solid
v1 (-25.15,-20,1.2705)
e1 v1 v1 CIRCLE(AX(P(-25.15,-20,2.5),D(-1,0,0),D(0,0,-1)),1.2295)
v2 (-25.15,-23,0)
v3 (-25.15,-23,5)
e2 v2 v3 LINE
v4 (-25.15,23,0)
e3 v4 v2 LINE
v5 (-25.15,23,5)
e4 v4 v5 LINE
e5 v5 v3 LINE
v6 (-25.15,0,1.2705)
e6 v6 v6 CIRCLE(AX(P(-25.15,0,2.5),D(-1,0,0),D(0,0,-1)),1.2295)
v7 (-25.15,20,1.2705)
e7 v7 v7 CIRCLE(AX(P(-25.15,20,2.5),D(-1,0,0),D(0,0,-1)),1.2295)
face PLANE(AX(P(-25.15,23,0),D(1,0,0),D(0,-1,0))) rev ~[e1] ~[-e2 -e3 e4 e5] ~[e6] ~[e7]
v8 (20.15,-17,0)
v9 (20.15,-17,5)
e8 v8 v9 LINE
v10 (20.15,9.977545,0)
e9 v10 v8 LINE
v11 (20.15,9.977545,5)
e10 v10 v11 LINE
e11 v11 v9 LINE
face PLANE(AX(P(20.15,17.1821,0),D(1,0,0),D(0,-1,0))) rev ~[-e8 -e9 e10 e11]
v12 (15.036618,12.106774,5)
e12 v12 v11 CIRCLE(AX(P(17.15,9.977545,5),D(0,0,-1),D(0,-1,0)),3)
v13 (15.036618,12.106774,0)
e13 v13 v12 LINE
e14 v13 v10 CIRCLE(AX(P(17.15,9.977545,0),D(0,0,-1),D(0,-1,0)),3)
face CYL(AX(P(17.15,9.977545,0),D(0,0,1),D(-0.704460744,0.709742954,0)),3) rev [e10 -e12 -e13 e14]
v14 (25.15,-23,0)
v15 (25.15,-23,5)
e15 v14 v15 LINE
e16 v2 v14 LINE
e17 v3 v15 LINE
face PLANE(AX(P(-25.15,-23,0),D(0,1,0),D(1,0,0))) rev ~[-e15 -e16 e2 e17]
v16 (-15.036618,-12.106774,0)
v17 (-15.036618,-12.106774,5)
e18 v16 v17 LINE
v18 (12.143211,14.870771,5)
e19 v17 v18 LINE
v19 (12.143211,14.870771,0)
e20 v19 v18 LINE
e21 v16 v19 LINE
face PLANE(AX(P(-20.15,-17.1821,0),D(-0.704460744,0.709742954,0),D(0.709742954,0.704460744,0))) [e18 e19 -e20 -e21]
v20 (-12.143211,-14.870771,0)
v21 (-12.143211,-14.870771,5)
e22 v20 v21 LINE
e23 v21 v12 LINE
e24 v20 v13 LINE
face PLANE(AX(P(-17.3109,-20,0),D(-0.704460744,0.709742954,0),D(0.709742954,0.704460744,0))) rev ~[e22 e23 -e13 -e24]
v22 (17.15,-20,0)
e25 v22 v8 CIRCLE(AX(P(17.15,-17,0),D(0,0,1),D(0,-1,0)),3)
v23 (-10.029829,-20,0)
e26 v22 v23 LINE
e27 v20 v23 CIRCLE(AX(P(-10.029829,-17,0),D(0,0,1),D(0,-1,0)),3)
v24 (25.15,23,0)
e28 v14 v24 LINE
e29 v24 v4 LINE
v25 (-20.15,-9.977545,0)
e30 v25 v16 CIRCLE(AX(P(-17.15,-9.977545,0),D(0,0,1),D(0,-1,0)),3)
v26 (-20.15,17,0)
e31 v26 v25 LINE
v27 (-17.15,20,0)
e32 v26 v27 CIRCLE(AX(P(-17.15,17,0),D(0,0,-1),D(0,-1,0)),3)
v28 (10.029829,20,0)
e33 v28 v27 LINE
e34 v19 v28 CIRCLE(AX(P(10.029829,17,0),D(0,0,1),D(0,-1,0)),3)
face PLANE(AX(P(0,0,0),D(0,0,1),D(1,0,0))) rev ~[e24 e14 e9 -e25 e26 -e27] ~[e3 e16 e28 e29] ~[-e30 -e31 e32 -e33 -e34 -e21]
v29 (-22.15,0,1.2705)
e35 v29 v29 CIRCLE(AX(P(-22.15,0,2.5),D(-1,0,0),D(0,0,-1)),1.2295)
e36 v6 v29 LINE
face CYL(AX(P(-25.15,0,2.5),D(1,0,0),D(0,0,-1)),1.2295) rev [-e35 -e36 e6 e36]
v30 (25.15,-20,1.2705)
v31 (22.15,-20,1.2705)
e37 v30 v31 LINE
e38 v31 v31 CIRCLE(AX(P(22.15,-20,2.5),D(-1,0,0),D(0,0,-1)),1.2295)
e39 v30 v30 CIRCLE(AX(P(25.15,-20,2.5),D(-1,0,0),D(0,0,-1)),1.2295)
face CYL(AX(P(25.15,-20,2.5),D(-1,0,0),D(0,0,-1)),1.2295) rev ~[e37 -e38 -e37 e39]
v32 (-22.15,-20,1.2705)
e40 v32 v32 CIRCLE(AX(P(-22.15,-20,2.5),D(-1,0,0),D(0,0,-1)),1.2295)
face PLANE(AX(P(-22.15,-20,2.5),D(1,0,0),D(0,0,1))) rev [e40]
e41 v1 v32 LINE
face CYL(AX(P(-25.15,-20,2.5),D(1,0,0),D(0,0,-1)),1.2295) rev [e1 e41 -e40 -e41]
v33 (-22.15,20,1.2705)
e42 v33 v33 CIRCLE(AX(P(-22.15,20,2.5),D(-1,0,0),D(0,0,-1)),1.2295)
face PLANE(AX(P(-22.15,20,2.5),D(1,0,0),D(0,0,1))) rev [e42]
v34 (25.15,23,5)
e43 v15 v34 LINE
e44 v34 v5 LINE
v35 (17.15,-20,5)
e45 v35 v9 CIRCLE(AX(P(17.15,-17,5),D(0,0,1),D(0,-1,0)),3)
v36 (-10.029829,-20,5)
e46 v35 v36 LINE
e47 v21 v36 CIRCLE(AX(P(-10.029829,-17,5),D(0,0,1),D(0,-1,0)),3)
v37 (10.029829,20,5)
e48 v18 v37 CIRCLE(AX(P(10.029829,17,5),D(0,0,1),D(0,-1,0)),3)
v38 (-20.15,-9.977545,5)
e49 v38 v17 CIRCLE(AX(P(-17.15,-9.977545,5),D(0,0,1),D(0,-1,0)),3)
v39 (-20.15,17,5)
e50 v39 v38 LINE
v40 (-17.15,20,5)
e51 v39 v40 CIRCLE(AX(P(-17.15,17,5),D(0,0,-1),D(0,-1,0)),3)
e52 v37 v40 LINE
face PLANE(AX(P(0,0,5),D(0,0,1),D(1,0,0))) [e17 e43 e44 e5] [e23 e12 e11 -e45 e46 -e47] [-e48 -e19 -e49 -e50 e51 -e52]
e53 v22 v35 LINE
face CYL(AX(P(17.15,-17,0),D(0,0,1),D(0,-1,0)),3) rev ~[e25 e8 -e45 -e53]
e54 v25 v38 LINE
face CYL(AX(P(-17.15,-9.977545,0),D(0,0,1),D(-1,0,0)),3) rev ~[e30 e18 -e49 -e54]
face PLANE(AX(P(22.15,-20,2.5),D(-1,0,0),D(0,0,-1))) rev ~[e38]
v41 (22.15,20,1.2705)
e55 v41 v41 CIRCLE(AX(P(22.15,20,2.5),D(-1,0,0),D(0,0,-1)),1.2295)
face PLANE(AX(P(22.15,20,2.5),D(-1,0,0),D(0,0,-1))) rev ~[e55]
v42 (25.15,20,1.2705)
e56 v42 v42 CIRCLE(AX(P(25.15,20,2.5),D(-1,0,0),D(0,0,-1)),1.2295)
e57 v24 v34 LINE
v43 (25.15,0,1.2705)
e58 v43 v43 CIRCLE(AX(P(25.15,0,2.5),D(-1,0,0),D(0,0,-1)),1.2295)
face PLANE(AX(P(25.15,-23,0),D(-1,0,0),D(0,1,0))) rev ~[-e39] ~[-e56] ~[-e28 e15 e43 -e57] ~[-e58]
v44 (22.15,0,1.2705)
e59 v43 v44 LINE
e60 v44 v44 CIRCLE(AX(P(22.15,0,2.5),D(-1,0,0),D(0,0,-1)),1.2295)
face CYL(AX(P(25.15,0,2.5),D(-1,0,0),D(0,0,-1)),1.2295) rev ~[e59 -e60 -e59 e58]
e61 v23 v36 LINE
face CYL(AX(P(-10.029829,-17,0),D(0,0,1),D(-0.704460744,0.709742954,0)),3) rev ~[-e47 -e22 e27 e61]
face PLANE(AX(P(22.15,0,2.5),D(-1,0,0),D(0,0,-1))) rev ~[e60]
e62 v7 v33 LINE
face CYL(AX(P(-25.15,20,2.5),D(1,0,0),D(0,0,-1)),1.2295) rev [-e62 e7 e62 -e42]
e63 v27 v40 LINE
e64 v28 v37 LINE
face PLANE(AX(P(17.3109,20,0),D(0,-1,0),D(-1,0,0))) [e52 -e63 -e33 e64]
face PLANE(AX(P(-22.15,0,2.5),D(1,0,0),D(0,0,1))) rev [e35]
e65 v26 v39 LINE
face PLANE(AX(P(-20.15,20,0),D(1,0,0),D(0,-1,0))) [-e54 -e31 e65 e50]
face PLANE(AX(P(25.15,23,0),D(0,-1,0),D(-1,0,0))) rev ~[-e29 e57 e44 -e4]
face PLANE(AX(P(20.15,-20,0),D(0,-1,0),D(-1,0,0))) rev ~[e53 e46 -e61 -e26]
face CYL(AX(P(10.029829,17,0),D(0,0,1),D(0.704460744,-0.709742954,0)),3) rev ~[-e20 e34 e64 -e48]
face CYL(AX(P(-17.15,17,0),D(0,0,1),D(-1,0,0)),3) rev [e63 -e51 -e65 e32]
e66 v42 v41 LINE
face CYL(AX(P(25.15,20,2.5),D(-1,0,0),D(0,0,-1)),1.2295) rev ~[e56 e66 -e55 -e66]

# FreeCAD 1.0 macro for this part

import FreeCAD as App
import Part
import Sketcher

V = App.Vector
Q = App.Units.Quantity


def edges_at(feature, points):
    """Names of the edges that pass closest to the given points."""
    edges = feature.Shape.Edges
    near = lambda p: min(range(len(edges)), key=lambda i: edges[i].distToShape(Part.Vertex(*p))[0])
    return sorted({f"Edge{near(p) + 1}" for p in points})

doc = App.newDocument("Part")
body = doc.addObject("PartDesign::Body", "Body")

sketch1 = doc.addObject("Sketcher::SketchObject", "Sketch")
body.addObject(sketch1)
sketch1.AttachmentSupport = (doc.XY_Plane, [""])
sketch1.MapMode = "FlatFace"
sketch1.addGeometry([
    Part.LineSegment(V(-25.15, 23, 0), V(-25.15, -23, 0)),
    Part.LineSegment(V(-25.15, -23, 0), V(25.15, -23, 0)),
    Part.LineSegment(V(25.15, -23, 0), V(25.15, 23, 0)),
    Part.LineSegment(V(25.15, 23, 0), V(-25.15, 23, 0)),
    Part.LineSegment(V(-17.3109, -20, 0), V(20.15, 17.1821, 0)),
    Part.LineSegment(V(20.15, 17.1821, 0), V(20.15, -20, 0)),
    Part.LineSegment(V(20.15, -20, 0), V(-17.3109, -20, 0)),
    Part.LineSegment(V(-20.15, -17.1821, 0), V(-20.15, 20, 0)),
    Part.LineSegment(V(-20.15, 20, 0), V(17.3109, 20, 0)),
    Part.LineSegment(V(17.3109, 20, 0), V(-20.15, -17.1821, 0)),
], False)
sketch1.addConstraint([
    Sketcher.Constraint("Coincident", 0, 2, 1, 1),
    Sketcher.Constraint("Coincident", 1, 2, 2, 1),
    Sketcher.Constraint("Coincident", 2, 2, 3, 1),
    Sketcher.Constraint("Coincident", 3, 2, 0, 1),
    Sketcher.Constraint("Coincident", 4, 2, 5, 1),
    Sketcher.Constraint("Coincident", 5, 2, 6, 1),
    Sketcher.Constraint("Coincident", 6, 2, 4, 1),
    Sketcher.Constraint("Coincident", 7, 2, 8, 1),
    Sketcher.Constraint("Coincident", 8, 2, 9, 1),
    Sketcher.Constraint("Coincident", 9, 2, 7, 1),
    Sketcher.Constraint("Vertical", 0),
    Sketcher.Constraint("Horizontal", 1),
    Sketcher.Constraint("Vertical", 2),
    Sketcher.Constraint("Horizontal", 3),
    Sketcher.Constraint("Vertical", 5),
    Sketcher.Constraint("Horizontal", 6),
    Sketcher.Constraint("Vertical", 7),
    Sketcher.Constraint("Horizontal", 8),
    Sketcher.Constraint("Symmetric", 0, 2, 2, 2, -1, 1),
    Sketcher.Constraint("Symmetric", 5, 2, 7, 2, -1, 1),
    Sketcher.Constraint("Parallel", 4, 9),
    Sketcher.Constraint("Equal", 6, 8),
    Sketcher.Constraint("DistanceX", 1, 1, 1, 2, Q("50.3 mm")),
    Sketcher.Constraint("DistanceX", 4, 2, 2, 2, Q("5 mm")),
    Sketcher.Constraint("DistanceY", 1, 2, 5, 2, Q("3 mm")),
    Sketcher.Constraint("DistanceY", 6, 2, 7, 2, Q("40 mm")),
    Sketcher.Constraint("DistanceX", 6, 2, 6, 1, Q("37.461 mm")),
    Sketcher.Constraint("DistanceY", 5, 2, 5, 1, Q("37.182 mm")),
])
pad1 = doc.addObject("PartDesign::Pad", "Pad")
body.addObject(pad1)
pad1.Profile = sketch1
pad1.Length = 5
doc.recompute()

fillet = doc.addObject("PartDesign::Fillet", "Fillet")
body.addObject(fillet)
fillet.Base = (pad1, edges_at(pad1, [
    (-20.15, -17.182, 2.5),
    (-17.311, -20, 2.5),
    (-20.15, 20, 2.5),
    (17.311, 20, 2.5),
    (20.15, 17.182, 2.5),
    (20.15, -20, 2.5),
]))
fillet.Radius = 3

sketch2 = doc.addObject("Sketcher::SketchObject", "Sketch001")
body.addObject(sketch2)
sketch2.AttachmentSupport = (doc.YZ_Plane, [""])
sketch2.MapMode = "FlatFace"
sketch2.AttachmentOffset = App.Placement(V(0, 0, 25.15), App.Rotation())
sketch2.addGeometry([
    Part.Circle(V(-20, 2.5, 0), V(0, 0, 1), 1.2295),
    Part.Circle(V(20, 2.5, 0), V(0, 0, 1), 1.2295),
    Part.Circle(V(0, 2.5, 0), V(0, 0, 1), 1.2295),
], False)
sketch2.addConstraint([
    Sketcher.Constraint("Equal", 0, 1),
    Sketcher.Constraint("Equal", 1, 2),
    Sketcher.Constraint("Symmetric", 0, 3, 1, 3, -2),
    Sketcher.Constraint("PointOnObject", 2, 3, -2),
    Sketcher.Constraint("Horizontal", 1, 3, 2, 3),
    Sketcher.Constraint("Diameter", 0, Q("2.459 mm")),
    Sketcher.Constraint("DistanceX", 0, 3, -1, 1, Q("20 mm")),
    Sketcher.Constraint("DistanceY", -1, 1, 0, 3, Q("2.5 mm")),
])
doc.recompute()
hole = doc.addObject("PartDesign::Hole", "Hole")
body.addObject(hole)
hole.Profile = sketch2
hole.ThreadType = "None"
hole.Diameter = 2.459
hole.DepthType = "Dimension"
hole.Depth = 3
hole.DrillPoint = "Flat"
doc.recompute()

mirrored = doc.addObject("PartDesign::Mirrored", "Mirrored")
body.addObject(mirrored)
mirrored.Originals = [hole]
mirrored.MirrorPlane = (doc.YZ_Plane, [""])
body.Tip = mirrored

doc.recompute()
